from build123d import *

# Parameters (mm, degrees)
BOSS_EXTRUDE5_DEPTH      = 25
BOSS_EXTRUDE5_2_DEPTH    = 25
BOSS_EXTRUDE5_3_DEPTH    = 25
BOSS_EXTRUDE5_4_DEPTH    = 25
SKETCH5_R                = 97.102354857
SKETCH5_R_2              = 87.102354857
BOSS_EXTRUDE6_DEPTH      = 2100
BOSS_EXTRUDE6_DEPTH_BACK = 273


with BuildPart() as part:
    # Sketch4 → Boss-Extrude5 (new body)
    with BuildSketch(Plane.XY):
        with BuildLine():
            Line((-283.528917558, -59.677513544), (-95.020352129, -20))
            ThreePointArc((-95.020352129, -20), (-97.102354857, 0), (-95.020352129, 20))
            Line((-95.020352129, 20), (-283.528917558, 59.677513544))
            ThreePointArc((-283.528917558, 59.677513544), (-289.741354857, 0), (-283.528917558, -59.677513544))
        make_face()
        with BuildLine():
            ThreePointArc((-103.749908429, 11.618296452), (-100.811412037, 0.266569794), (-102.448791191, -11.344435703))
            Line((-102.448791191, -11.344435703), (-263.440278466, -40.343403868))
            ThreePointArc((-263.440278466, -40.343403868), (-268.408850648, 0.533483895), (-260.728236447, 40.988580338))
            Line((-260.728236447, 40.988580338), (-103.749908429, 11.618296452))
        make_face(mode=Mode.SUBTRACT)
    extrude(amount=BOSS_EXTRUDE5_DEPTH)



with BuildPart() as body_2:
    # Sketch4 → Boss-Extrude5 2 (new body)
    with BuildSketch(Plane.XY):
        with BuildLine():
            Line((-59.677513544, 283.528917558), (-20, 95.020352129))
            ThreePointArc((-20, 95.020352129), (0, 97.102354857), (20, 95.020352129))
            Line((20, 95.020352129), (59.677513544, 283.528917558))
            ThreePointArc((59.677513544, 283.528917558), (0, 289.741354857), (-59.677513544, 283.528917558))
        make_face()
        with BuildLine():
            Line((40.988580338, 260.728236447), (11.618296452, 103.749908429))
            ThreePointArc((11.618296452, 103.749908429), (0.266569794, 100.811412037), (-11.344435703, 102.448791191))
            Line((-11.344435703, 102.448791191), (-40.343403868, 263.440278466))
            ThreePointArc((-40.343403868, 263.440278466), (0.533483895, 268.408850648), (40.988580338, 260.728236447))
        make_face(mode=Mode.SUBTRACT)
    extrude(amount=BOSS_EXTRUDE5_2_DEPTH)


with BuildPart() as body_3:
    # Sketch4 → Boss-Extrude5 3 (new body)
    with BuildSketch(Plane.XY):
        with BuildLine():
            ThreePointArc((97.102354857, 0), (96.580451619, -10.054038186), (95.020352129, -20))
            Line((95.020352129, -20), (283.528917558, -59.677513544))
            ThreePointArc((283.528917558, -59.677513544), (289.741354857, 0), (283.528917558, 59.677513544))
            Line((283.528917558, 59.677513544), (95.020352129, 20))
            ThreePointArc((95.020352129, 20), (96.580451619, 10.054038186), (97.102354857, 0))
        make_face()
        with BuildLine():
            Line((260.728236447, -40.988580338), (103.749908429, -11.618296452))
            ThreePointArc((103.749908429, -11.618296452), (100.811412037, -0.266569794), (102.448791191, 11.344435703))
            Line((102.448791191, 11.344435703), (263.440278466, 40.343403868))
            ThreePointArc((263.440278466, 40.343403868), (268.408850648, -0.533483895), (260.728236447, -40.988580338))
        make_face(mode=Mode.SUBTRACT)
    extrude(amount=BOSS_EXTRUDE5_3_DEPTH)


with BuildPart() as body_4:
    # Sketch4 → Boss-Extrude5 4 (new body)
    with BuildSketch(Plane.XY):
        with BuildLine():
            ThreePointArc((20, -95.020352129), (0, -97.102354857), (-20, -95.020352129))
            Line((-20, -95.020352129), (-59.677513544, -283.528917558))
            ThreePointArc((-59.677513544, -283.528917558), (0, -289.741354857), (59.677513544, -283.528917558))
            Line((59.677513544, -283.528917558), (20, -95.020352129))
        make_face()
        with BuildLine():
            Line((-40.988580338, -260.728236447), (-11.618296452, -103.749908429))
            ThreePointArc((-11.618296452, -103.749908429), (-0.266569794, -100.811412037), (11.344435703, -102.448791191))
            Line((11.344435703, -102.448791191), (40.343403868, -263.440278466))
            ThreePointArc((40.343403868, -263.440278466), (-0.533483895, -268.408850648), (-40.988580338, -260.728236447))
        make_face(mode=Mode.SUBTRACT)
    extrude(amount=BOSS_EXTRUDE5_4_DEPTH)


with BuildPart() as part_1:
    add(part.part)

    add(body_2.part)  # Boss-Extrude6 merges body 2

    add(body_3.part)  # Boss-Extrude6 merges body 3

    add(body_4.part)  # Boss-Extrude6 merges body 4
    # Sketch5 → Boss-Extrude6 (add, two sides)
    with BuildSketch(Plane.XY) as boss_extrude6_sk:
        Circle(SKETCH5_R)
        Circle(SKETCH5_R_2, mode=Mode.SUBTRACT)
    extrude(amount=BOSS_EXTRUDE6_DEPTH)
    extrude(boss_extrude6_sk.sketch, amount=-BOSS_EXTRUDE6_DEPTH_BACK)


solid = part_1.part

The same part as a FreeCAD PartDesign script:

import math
import FreeCAD as App
import Part
import Sketcher

V = App.Vector

doc = App.newDocument("Part")
body = doc.addObject("PartDesign::Body", "Body")

# Sketch on XY plane
sketch1 = body.newObject("Sketcher::SketchObject", "Sketch")
sketch1.AttachmentSupport = (doc.getObject("XY_Plane"), [""])
sketch1.MapMode = "FlatFace"
sketch1.addGeometry(Part.LineSegment(V(-284, -60, 0), V(-95, -20, 0)), False)
sketch1.addGeometry(Part.ArcOfCircle(Part.Circle(V(0, 0, 0), V(0, 0, 1), 97), math.radians(168), math.radians(192)), False)
sketch1.addGeometry(Part.LineSegment(V(-95, 20, 0), V(-284, 60, 0)), False)
sketch1.addGeometry(Part.ArcOfCircle(Part.Circle(V(0, 0, 0), V(0, 0, 1), 290), math.radians(168), math.radians(192)), False)
sketch1.addGeometry(Part.LineSegment(V(-261, 41, 0), V(-104, 12, 0)), False)
sketch1.addGeometry(Part.ArcOfCircle(Part.Circle(V(-131, -1, 0), V(0, 0, 1), 30), math.radians(-19), math.radians(26)), False)
sketch1.addGeometry(Part.LineSegment(V(-102, -11, 0), V(-263, -40, 0)), False)
sketch1.addGeometry(Part.ArcOfCircle(Part.Circle(V(-135, -4, 0), V(0, 0, 1), 134), math.radians(160), math.radians(196)), False)
sketch1.addConstraint(Sketcher.Constraint("Coincident", 0, 2, 1, 2))
sketch1.addConstraint(Sketcher.Constraint("Coincident", 1, 1, 2, 1))
sketch1.addConstraint(Sketcher.Constraint("Coincident", 2, 2, 3, 1))
sketch1.addConstraint(Sketcher.Constraint("Coincident", 3, 2, 0, 1))
sketch1.addConstraint(Sketcher.Constraint("Coincident", 4, 2, 5, 2))
sketch1.addConstraint(Sketcher.Constraint("Coincident", 5, 1, 6, 1))
sketch1.addConstraint(Sketcher.Constraint("Coincident", 6, 2, 7, 2))
sketch1.addConstraint(Sketcher.Constraint("Coincident", 7, 1, 4, 1))
sketch1.addConstraint(Sketcher.Constraint("Coincident", 1, 3, -1, 1))
sketch1.addConstraint(Sketcher.Constraint("Coincident", 3, 3, -1, 1))
sketch1.addConstraint(Sketcher.Constraint("Vertical", 0, 2, 1, 1))
sketch1.addConstraint(Sketcher.Constraint("Vertical", 2, 2, 3, 2))
sketch1.addConstraint(Sketcher.Constraint("Radius", 5, 30.0))
sketch1.addConstraint(Sketcher.Constraint("DistanceY", 0, 2, -1, 1, 20.0))
sketch1.addConstraint(Sketcher.Constraint("Radius", 7, 133.974211))
sketch1.addConstraint(Sketcher.Constraint("Distance", 0, 192.639))
sketch1.addConstraint(Sketcher.Constraint("Radius", 1, 97.102355))
sketch1.addConstraint(Sketcher.Constraint("Distance", 4, 159.702251))
sketch1.addConstraint(Sketcher.Constraint("DistanceX", 5, 3, -1, 1, 130.763369))
sketch1.addConstraint(Sketcher.Constraint("DistanceY", 5, 3, -1, 1, 1.430572))
sketch1.addConstraint(Sketcher.Constraint("DistanceX", 7, 3, -1, 1, 134.509061))
sketch1.addConstraint(Sketcher.Constraint("DistanceY", 7, 3, -1, 1, 3.931449))
sketch1.addConstraint(Sketcher.Constraint("DistanceX", 4, 2, -1, 1, 103.749908))
sketch1.addConstraint(Sketcher.Constraint("DistanceX", 5, 1, -1, 1, 102.448791))
sketch1.addConstraint(Sketcher.Constraint("DistanceX", 6, 2, -1, 1, 263.440278))
sketch1.addConstraint(Sketcher.Constraint("DistanceX", 2, 2, 5, 3, 152.765549))
pad1 = body.newObject("PartDesign::Pad", "Pad")
pad1.Profile = sketch1
pad1.Length = 25
body2 = doc.addObject("PartDesign::Body", "Body001")

# Sketch on XY plane
sketch2 = body2.newObject("Sketcher::SketchObject", "Sketch001")
sketch2.AttachmentSupport = (doc.getObject("XY_Plane001"), [""])
sketch2.MapMode = "FlatFace"
sketch2.addGeometry(Part.LineSegment(V(-60, 284, 0), V(-20, 95, 0)), False)
sketch2.addGeometry(Part.ArcOfCircle(Part.Circle(V(0, 0, 0), V(0, 0, 1), 97), math.radians(78), math.radians(102)), False)
sketch2.addGeometry(Part.LineSegment(V(20, 95, 0), V(60, 284, 0)), False)
sketch2.addGeometry(Part.ArcOfCircle(Part.Circle(V(0, 0, 0), V(0, 0, 1), 290), math.radians(78), math.radians(102)), False)
sketch2.addGeometry(Part.ArcOfCircle(Part.Circle(V(-4, 135, 0), V(0, 0, 1), 134), math.radians(70), math.radians(106)), False)
sketch2.addGeometry(Part.LineSegment(V(41, 261, 0), V(12, 104, 0)), False)
sketch2.addGeometry(Part.ArcOfCircle(Part.Circle(V(-1, 131, 0), V(0, 0, 1), 30), math.radians(-109), math.radians(-64)), False)
sketch2.addGeometry(Part.LineSegment(V(-11, 102, 0), V(-40, 263, 0)), False)
sketch2.addConstraint(Sketcher.Constraint("Coincident", 0, 2, 1, 2))
sketch2.addConstraint(Sketcher.Constraint("Coincident", 1, 1, 2, 1))
sketch2.addConstraint(Sketcher.Constraint("Coincident", 2, 2, 3, 1))
sketch2.addConstraint(Sketcher.Constraint("Coincident", 3, 2, 0, 1))
sketch2.addConstraint(Sketcher.Constraint("Coincident", 4, 1, 5, 1))
sketch2.addConstraint(Sketcher.Constraint("Coincident", 5, 2, 6, 2))
sketch2.addConstraint(Sketcher.Constraint("Coincident", 6, 1, 7, 1))
sketch2.addConstraint(Sketcher.Constraint("Coincident", 7, 2, 4, 2))
sketch2.addConstraint(Sketcher.Constraint("Coincident", 1, 3, -1, 1))
sketch2.addConstraint(Sketcher.Constraint("Coincident", 3, 3, -1, 1))
sketch2.addConstraint(Sketcher.Constraint("Horizontal", 0, 2, 1, 1))
sketch2.addConstraint(Sketcher.Constraint("Horizontal", 2, 2, 3, 2))
sketch2.addConstraint(Sketcher.Constraint("Radius", 6, 30.0))
sketch2.addConstraint(Sketcher.Constraint("DistanceX", 0, 2, -1, 1, 20.0))
sketch2.addConstraint(Sketcher.Constraint("Radius", 4, 133.974211))
sketch2.addConstraint(Sketcher.Constraint("Distance", 0, 192.639))
sketch2.addConstraint(Sketcher.Constraint("Radius", 1, 97.102355))
sketch2.addConstraint(Sketcher.Constraint("Distance", 5, 159.702251))
sketch2.addConstraint(Sketcher.Constraint("DistanceX", 4, 3, -1, 1, 3.931449))
sketch2.addConstraint(Sketcher.Constraint("DistanceY", -1, 1, 4, 3, 134.509061))
sketch2.addConstraint(Sketcher.Constraint("DistanceX", 6, 3, -1, 1, 1.430572))
sketch2.addConstraint(Sketcher.Constraint("DistanceY", -1, 1, 6, 3, 130.763369))
sketch2.addConstraint(Sketcher.Constraint("DistanceX", -1, 1, 4, 1, 40.98858))
sketch2.addConstraint(Sketcher.Constraint("DistanceY", -1, 1, 6, 1, 102.448791))
sketch2.addConstraint(Sketcher.Constraint("DistanceY", -1, 1, 7, 2, 263.440278))
sketch2.addConstraint(Sketcher.Constraint("DistanceY", 6, 3, 2, 2, 152.765549))
pad2 = body2.newObject("PartDesign::Pad", "Pad001")
pad2.Profile = sketch2
pad2.Length = 25
body3 = doc.addObject("PartDesign::Body", "Body002")

# Sketch on XY plane
sketch3 = body3.newObject("Sketcher::SketchObject", "Sketch002")
sketch3.AttachmentSupport = (doc.getObject("XY_Plane002"), [""])
sketch3.MapMode = "FlatFace"
sketch3.addGeometry(Part.ArcOfCircle(Part.Circle(V(0, 0, 0), V(0, 0, 1), 97), math.radians(-11.89), math.radians(0)), False)
sketch3.addGeometry(Part.LineSegment(V(95, -20, 0), V(284, -60, 0)), False)
sketch3.addGeometry(Part.ArcOfCircle(Part.Circle(V(0, 0, 0), V(0, 0, 1), 290), math.radians(-12), math.radians(12)), False)
sketch3.addGeometry(Part.LineSegment(V(284, 60, 0), V(95, 20, 0)), False)
sketch3.addGeometry(Part.ArcOfCircle(Part.Circle(V(0, 0, 0), V(0, 0, 1), 97), math.radians(0), math.radians(11.89)), False)
sketch3.addGeometry(Part.ArcOfCircle(Part.Circle(V(135, 4, 0), V(0, 0, 1), 134), math.radians(-20), math.radians(16)), False)
sketch3.addGeometry(Part.LineSegment(V(261, -41, 0), V(104, -12, 0)), False)
sketch3.addGeometry(Part.ArcOfCircle(Part.Circle(V(131, 1, 0), V(0, 0, 1), 30), math.radians(161), math.radians(206)), False)
sketch3.addGeometry(Part.LineSegment(V(102, 11, 0), V(263, 40, 0)), False)
sketch3.addConstraint(Sketcher.Constraint("Coincident", 0, 1, 1, 1))
sketch3.addConstraint(Sketcher.Constraint("Coincident", 1, 2, 2, 1))
sketch3.addConstraint(Sketcher.Constraint("Coincident", 2, 2, 3, 1))
sketch3.addConstraint(Sketcher.Constraint("Coincident", 3, 2, 4, 2))
sketch3.addConstraint(Sketcher.Constraint("Tangent", 4, 1, 0, 2))
sketch3.addConstraint(Sketcher.Constraint("Coincident", 5, 1, 6, 1))
sketch3.addConstraint(Sketcher.Constraint("Coincident", 6, 2, 7, 2))
sketch3.addConstraint(Sketcher.Constraint("Coincident", 7, 1, 8, 1))
sketch3.addConstraint(Sketcher.Constraint("Coincident", 8, 2, 5, 2))
sketch3.addConstraint(Sketcher.Constraint("Coincident", 0, 3, -1, 1))
sketch3.addConstraint(Sketcher.Constraint("Coincident", 2, 3, -1, 1))
sketch3.addConstraint(Sketcher.Constraint("Equal", 0, 4))
sketch3.addConstraint(Sketcher.Constraint("PointOnObject", 4, 1, -1))
sketch3.addConstraint(Sketcher.Constraint("Vertical", 1, 2, 2, 2))
sketch3.addConstraint(Sketcher.Constraint("Vertical", 0, 1, 3, 2))
sketch3.addConstraint(Sketcher.Constraint("Radius", 7, 30.0))
sketch3.addConstraint(Sketcher.Constraint("DistanceY", 0, 1, -1, 1, 20.0))
sketch3.addConstraint(Sketcher.Constraint("Radius", 5, 133.974211))
sketch3.addConstraint(Sketcher.Constraint("Distance", 1, 192.639))
sketch3.addConstraint(Sketcher.Constraint("Radius", 0, 97.102355))
sketch3.addConstraint(Sketcher.Constraint("Distance", 6, 159.702251))
sketch3.addConstraint(Sketcher.Constraint("DistanceX", -1, 1, 5, 3, 134.509061))
sketch3.addConstraint(Sketcher.Constraint("DistanceY", -1, 1, 5, 3, 3.931449))
sketch3.addConstraint(Sketcher.Constraint("DistanceX", -1, 1, 7, 3, 130.763369))
sketch3.addConstraint(Sketcher.Constraint("DistanceY", -1, 1, 7, 3, 1.430572))
sketch3.addConstraint(Sketcher.Constraint("DistanceY", 5, 1, -1, 1, 40.98858))
sketch3.addConstraint(Sketcher.Constraint("DistanceX", -1, 1, 7, 1, 102.448791))
sketch3.addConstraint(Sketcher.Constraint("DistanceX", -1, 1, 8, 2, 263.440278))
sketch3.addConstraint(Sketcher.Constraint("DistanceX", 7, 3, 1, 2, 152.765549))
pad3 = body3.newObject("PartDesign::Pad", "Pad002")
pad3.Profile = sketch3
pad3.Length = 25
body4 = doc.addObject("PartDesign::Body", "Body003")

# Sketch on XY plane
sketch4 = body4.newObject("Sketcher::SketchObject", "Sketch003")
sketch4.AttachmentSupport = (doc.getObject("XY_Plane003"), [""])
sketch4.MapMode = "FlatFace"
sketch4.addGeometry(Part.ArcOfCircle(Part.Circle(V(0, 0, 0), V(0, 0, 1), 97), math.radians(-102), math.radians(-78)), False)
sketch4.addGeometry(Part.LineSegment(V(-20, -95, 0), V(-60, -284, 0)), False)
sketch4.addGeometry(Part.ArcOfCircle(Part.Circle(V(0, 0, 0), V(0, 0, 1), 290), math.radians(-102), math.radians(-78)), False)
sketch4.addGeometry(Part.LineSegment(V(60, -284, 0), V(20, -95, 0)), False)
sketch4.addGeometry(Part.ArcOfCircle(Part.Circle(V(4, -135, 0), V(0, 0, 1), 134), math.radians(-110), math.radians(-74)), False)
sketch4.addGeometry(Part.LineSegment(V(-41, -261, 0), V(-12, -104, 0)), False)
sketch4.addGeometry(Part.ArcOfCircle(Part.Circle(V(1, -131, 0), V(0, 0, 1), 30), math.radians(71), math.radians(116)), False)
sketch4.addGeometry(Part.LineSegment(V(11, -102, 0), V(40, -263, 0)), False)
sketch4.addConstraint(Sketcher.Constraint("Coincident", 0, 1, 1, 1))
sketch4.addConstraint(Sketcher.Constraint("Coincident", 1, 2, 2, 1))
sketch4.addConstraint(Sketcher.Constraint("Coincident", 2, 2, 3, 1))
sketch4.addConstraint(Sketcher.Constraint("Coincident", 3, 2, 0, 2))
sketch4.addConstraint(Sketcher.Constraint("Coincident", 4, 1, 5, 1))
sketch4.addConstraint(Sketcher.Constraint("Coincident", 5, 2, 6, 2))
sketch4.addConstraint(Sketcher.Constraint("Coincident", 6, 1, 7, 1))
sketch4.addConstraint(Sketcher.Constraint("Coincident", 7, 2, 4, 2))
sketch4.addConstraint(Sketcher.Constraint("Coincident", 0, 3, -1, 1))
sketch4.addConstraint(Sketcher.Constraint("Coincident", 2, 3, -1, 1))
sketch4.addConstraint(Sketcher.Constraint("Horizontal", 1, 2, 2, 2))
sketch4.addConstraint(Sketcher.Constraint("Horizontal", 0, 1, 3, 2))
sketch4.addConstraint(Sketcher.Constraint("Radius", 6, 30.0))
sketch4.addConstraint(Sketcher.Constraint("DistanceX", 0, 1, -1, 1, 20.0))
sketch4.addConstraint(Sketcher.Constraint("Radius", 4, 133.974211))
sketch4.addConstraint(Sketcher.Constraint("Distance", 1, 192.639))
sketch4.addConstraint(Sketcher.Constraint("Radius", 0, 97.102355))
sketch4.addConstraint(Sketcher.Constraint("Distance", 5, 159.702251))
sketch4.addConstraint(Sketcher.Constraint("DistanceX", -1, 1, 4, 3, 3.931449))
sketch4.addConstraint(Sketcher.Constraint("DistanceY", 4, 3, -1, 1, 134.509061))
sketch4.addConstraint(Sketcher.Constraint("DistanceX", -1, 1, 6, 3, 1.430572))
sketch4.addConstraint(Sketcher.Constraint("DistanceY", 6, 3, -1, 1, 130.763369))
sketch4.addConstraint(Sketcher.Constraint("DistanceX", 4, 1, -1, 1, 40.98858))
sketch4.addConstraint(Sketcher.Constraint("DistanceY", 6, 1, -1, 1, 102.448791))
sketch4.addConstraint(Sketcher.Constraint("DistanceY", 7, 2, -1, 1, 263.440278))
sketch4.addConstraint(Sketcher.Constraint("DistanceY", 1, 2, 6, 3, 152.765549))
pad4 = body4.newObject("PartDesign::Pad", "Pad003")
pad4.Profile = sketch4
pad4.Length = 25
body.AllowCompound = True
doc.recompute()

boolean = body.newObject("PartDesign::Boolean", "Boolean")
boolean.Type = "Fuse"
boolean.addObjects([body2])
doc.recompute()

boolean2 = body.newObject("PartDesign::Boolean", "Boolean001")
boolean2.Type = "Fuse"
boolean2.addObjects([body3])
doc.recompute()

boolean3 = body.newObject("PartDesign::Boolean", "Boolean002")
boolean3.Type = "Fuse"
boolean3.addObjects([body4])

# Sketch on XY plane
sketch5 = body.newObject("Sketcher::SketchObject", "Sketch004")
sketch5.AttachmentSupport = (doc.getObject("XY_Plane"), [""])
sketch5.MapMode = "FlatFace"
sketch5.addGeometry(Part.Circle(V(0, 0, 0), V(0, 0, 1), 97), False)
sketch5.addGeometry(Part.Circle(V(0, 0, 0), V(0, 0, 1), 87), False)
sketch5.addConstraint(Sketcher.Constraint("Coincident", 0, 3, -1, 1))
sketch5.addConstraint(Sketcher.Constraint("Coincident", 1, 3, -1, 1))
sketch5.addConstraint(Sketcher.Constraint("Diameter", 0, 194.20471))
sketch5.addConstraint(Sketcher.Constraint("Diameter", 1, 174.20471))
pad5 = body.newObject("PartDesign::Pad", "Pad004")
pad5.Profile = sketch5
pad5.Type = "TwoLengths"
pad5.Length = 2100
pad5.Length2 = 273

doc.recompute()
